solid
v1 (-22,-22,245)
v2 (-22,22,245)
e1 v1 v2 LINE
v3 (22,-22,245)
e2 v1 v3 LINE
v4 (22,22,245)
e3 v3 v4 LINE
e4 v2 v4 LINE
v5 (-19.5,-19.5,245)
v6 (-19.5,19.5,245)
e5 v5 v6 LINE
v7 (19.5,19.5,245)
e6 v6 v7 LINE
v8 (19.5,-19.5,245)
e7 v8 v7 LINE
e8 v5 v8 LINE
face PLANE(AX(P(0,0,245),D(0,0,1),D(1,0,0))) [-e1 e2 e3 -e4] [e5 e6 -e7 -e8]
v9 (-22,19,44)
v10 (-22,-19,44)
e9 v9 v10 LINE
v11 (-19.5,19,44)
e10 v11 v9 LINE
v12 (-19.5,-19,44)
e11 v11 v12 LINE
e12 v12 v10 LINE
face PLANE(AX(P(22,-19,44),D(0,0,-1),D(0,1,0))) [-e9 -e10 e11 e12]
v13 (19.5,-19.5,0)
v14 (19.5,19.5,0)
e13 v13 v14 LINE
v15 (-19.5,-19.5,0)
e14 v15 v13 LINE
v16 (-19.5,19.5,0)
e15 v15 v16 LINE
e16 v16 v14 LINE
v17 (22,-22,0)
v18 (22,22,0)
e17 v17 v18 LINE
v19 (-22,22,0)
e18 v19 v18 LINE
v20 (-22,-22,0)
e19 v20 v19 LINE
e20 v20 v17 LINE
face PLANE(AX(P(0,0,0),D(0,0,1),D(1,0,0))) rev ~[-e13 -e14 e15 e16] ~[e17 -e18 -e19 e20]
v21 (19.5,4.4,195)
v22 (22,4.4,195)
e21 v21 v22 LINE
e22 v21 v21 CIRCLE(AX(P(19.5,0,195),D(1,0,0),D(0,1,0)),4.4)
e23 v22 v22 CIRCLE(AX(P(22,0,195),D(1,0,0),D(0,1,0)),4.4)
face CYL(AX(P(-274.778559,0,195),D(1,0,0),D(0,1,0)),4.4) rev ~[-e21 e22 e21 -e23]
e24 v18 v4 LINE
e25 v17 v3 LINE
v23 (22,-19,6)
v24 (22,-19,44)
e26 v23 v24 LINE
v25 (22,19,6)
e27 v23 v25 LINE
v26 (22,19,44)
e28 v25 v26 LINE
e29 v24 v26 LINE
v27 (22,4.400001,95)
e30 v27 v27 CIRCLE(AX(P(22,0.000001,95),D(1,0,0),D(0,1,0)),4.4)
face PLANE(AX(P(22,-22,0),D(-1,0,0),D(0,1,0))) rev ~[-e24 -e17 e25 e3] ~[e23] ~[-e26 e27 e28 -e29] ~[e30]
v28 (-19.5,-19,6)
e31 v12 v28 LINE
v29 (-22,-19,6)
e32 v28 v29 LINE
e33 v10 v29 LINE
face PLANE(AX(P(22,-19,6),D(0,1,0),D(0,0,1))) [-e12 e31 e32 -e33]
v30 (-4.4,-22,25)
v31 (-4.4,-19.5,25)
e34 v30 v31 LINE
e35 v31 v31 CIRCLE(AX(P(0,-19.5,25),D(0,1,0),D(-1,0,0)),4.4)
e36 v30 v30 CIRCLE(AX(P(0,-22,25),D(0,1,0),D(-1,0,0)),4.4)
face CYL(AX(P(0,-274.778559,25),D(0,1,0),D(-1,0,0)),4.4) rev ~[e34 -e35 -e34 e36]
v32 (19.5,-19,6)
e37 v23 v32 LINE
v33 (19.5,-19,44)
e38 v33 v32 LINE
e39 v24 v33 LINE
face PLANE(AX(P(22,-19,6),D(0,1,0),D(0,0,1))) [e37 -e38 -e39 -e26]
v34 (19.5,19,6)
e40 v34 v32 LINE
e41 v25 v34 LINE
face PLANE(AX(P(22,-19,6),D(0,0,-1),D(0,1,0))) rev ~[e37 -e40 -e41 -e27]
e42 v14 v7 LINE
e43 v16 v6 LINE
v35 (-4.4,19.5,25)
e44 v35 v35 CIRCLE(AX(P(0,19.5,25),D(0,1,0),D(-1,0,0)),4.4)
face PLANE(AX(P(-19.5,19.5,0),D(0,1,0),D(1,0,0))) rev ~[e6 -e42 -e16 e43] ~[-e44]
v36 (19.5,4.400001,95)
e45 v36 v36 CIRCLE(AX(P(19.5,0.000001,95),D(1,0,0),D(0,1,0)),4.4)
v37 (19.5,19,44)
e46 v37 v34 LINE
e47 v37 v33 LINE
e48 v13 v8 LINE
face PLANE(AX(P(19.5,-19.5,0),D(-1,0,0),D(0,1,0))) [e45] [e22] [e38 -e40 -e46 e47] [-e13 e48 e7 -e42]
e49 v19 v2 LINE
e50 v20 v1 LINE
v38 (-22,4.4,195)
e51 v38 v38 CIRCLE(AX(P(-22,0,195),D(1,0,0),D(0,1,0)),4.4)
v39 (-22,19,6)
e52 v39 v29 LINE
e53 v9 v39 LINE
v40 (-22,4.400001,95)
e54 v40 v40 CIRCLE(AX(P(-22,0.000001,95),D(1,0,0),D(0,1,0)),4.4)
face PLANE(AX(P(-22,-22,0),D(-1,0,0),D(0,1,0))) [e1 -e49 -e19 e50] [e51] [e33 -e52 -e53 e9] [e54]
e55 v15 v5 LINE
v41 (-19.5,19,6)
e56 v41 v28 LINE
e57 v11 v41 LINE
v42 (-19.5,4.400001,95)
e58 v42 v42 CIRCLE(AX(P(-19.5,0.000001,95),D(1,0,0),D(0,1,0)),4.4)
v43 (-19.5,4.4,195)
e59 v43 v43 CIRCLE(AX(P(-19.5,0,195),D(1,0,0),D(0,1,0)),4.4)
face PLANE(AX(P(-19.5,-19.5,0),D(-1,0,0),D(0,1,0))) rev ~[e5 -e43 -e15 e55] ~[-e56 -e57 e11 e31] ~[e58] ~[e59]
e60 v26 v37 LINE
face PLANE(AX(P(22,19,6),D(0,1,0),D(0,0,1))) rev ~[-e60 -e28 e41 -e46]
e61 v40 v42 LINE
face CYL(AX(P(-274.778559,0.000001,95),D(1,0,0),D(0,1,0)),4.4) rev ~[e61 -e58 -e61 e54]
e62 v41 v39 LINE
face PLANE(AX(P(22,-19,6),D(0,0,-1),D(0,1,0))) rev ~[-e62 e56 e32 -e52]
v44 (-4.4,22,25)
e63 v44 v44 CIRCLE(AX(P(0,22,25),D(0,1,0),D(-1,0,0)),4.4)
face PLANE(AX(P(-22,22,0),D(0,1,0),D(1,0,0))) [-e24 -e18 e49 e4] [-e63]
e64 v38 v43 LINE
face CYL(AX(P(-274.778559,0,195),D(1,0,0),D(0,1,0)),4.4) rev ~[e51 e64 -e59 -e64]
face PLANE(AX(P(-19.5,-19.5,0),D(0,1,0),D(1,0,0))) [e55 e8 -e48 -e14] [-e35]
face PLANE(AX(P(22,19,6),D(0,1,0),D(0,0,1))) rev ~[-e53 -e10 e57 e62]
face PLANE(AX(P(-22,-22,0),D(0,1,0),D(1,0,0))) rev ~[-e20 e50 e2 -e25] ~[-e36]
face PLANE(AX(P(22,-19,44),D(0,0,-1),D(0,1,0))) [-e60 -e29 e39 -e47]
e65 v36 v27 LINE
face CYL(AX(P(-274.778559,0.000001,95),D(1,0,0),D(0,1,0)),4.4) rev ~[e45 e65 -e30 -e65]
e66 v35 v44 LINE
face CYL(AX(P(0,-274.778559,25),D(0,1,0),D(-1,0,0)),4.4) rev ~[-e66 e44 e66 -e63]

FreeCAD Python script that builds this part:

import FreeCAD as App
import Part
import Sketcher
from FreeCAD import Vector
Q = App.Units.Quantity


def add_polygon(sketch, points):
    """Adds a closed chain of lines whose ends are joined by coincident constraints."""
    first, n = sketch.GeometryCount, len(points)
    for a, b in zip(points, points[1:] + points[:1]):
        sketch.addGeometry(Part.LineSegment(App.Vector(*a, 0), App.Vector(*b, 0)), False)
    for i in range(n):
        sketch.addConstraint(Sketcher.Constraint("Coincident", first + i, 2, first + (i + 1) % n, 1))

doc = App.newDocument("Part")
params = doc.addObject("Spreadsheet::Sheet", "Params")
for row, (alias, value) in enumerate([
    ("sketch1_width", "44 mm"),
    ("sketch1_width2", "39 mm"),
    ("pad1_length", "245 mm"),
    ("sketch2_diameter", "8.8 mm"),
    ("hole_diameter", "8.8 mm"),
    ("sketch3_width", "38 mm"),
    ("sketch4_diameter", "8.8 mm"),
    ("hole2_diameter", "8.8 mm"),
], start=1):
    params.set(f"A{row}", alias)
    params.set(f"B{row}", "=" + value)
    params.setAlias(f"B{row}", alias)

body = doc.addObject("PartDesign::Body", "Body")

# Sketch on XY plane
sketch1 = doc.addObject("Sketcher::SketchObject", "Sketch")
body.addObject(sketch1)
sketch1.AttachmentSupport = (doc.XY_Plane, [""])
sketch1.MapMode = "FlatFace"
add_polygon(sketch1, [(-22, 22), (-22, -22), (22, -22), (22, 22)])  # lines 0-3
add_polygon(sketch1, [(20, -20), (-20, -20), (-20, 20), (20, 20)])  # lines 4-7
sketch1.addConstraint(Sketcher.Constraint("Vertical", 0))
sketch1.addConstraint(Sketcher.Constraint("Horizontal", 1))
sketch1.addConstraint(Sketcher.Constraint("Vertical", 2))
sketch1.addConstraint(Sketcher.Constraint("Horizontal", 3))
sketch1.addConstraint(Sketcher.Constraint("Horizontal", 4))
sketch1.addConstraint(Sketcher.Constraint("Vertical", 5))
sketch1.addConstraint(Sketcher.Constraint("Horizontal", 6))
sketch1.addConstraint(Sketcher.Constraint("Vertical", 7))
sketch1.addConstraint(Sketcher.Constraint("Symmetric", 0, 2, 2, 2, -1, 1))
sketch1.addConstraint(Sketcher.Constraint("Symmetric", 4, 2, 6, 2, -1, 1))
sketch1.addConstraint(Sketcher.Constraint("Equal", 3, 0))
sketch1.addConstraint(Sketcher.Constraint("Equal", 6, 5))
sketch1.addConstraint(Sketcher.Constraint("DistanceX", 1, 1, 1, 2, Q("44 mm")))
sketch1.addConstraint(Sketcher.Constraint("DistanceX", 4, 2, 4, 1, Q("39 mm")))
sketch1.setExpression("Constraints[20]", "Params.sketch1_width")
sketch1.setExpression("Constraints[21]", "Params.sketch1_width2")
pad1 = doc.addObject("PartDesign::Pad", "Pad")
body.addObject(pad1)
pad1.Profile = sketch1
pad1.setExpression("Length", "Params.pad1_length")

# Sketch on YZ plane
sketch2 = doc.addObject("Sketcher::SketchObject", "Sketch001")
body.addObject(sketch2)
sketch2.AttachmentSupport = (doc.YZ_Plane, [""])
sketch2.MapMode = "FlatFace"
sketch2.AttachmentOffset = App.Placement(Vector(0, 0, -22), App.Rotation())
sketch2.addGeometry(Part.Circle(Vector(0, 195, 0), Vector(0, 0, 1), 4.4), False)
sketch2.addGeometry(Part.Circle(Vector(0, 95, 0), Vector(0, 0, 1), 4.4), False)
sketch2.addConstraint(Sketcher.Constraint("Equal", 0, 1))
sketch2.addConstraint(Sketcher.Constraint("PointOnObject", 0, 3, -2))
sketch2.addConstraint(Sketcher.Constraint("PointOnObject", 1, 3, -2))
sketch2.addConstraint(Sketcher.Constraint("Diameter", 0, Q("8.8 mm")))
sketch2.addConstraint(Sketcher.Constraint("DistanceY", -1, 1, 0, 3, Q("195 mm")))
sketch2.addConstraint(Sketcher.Constraint("DistanceY", -1, 1, 1, 3, Q("95 mm")))
sketch2.setExpression("Constraints[3]", "Params.sketch2_diameter")
doc.recompute()
hole = doc.addObject("PartDesign::Hole", "Hole")
body.addObject(hole)
hole.Profile = sketch2
hole.ThreadType = "None"
hole.setExpression("Diameter", "Params.hole_diameter")
hole.DepthType = "ThroughAll"
hole.Reversed = True

# Sketch on YZ plane
sketch3 = doc.addObject("Sketcher::SketchObject", "Sketch002")
body.addObject(sketch3)
sketch3.AttachmentSupport = (doc.YZ_Plane, [""])
sketch3.MapMode = "FlatFace"
sketch3.AttachmentOffset = App.Placement(Vector(0, 0, 22), App.Rotation())
add_polygon(sketch3, [(-19, 44), (-19, 6), (19, 6), (19, 44)])  # lines 0-3
sketch3.addConstraint(Sketcher.Constraint("Vertical", 0))
sketch3.addConstraint(Sketcher.Constraint("Horizontal", 1))
sketch3.addConstraint(Sketcher.Constraint("Vertical", 2))
sketch3.addConstraint(Sketcher.Constraint("Horizontal", 3))
sketch3.addConstraint(Sketcher.Constraint("Equal", 3, 0))
sketch3.addConstraint(Sketcher.Constraint("DistanceX", 1, 1, 1, 2, Q("38 mm")))
sketch3.addConstraint(Sketcher.Constraint("DistanceX", 0, 2, -1, 1, Q("19 mm")))
sketch3.addConstraint(Sketcher.Constraint("DistanceY", -1, 1, 0, 2, Q("6 mm")))
sketch3.setExpression("Constraints[9]", "Params.sketch3_width")
pocket1 = doc.addObject("PartDesign::Pocket", "Pocket")
body.addObject(pocket1)
pocket1.Profile = sketch3
pocket1.Type = "ThroughAll"

# Sketch on XZ plane
sketch4 = doc.addObject("Sketcher::SketchObject", "Sketch003")
body.addObject(sketch4)
sketch4.AttachmentSupport = (doc.XZ_Plane, [""])
sketch4.MapMode = "FlatFace"
sketch4.AttachmentOffset = App.Placement(Vector(0, 0, 22), App.Rotation())
sketch4.addGeometry(Part.Circle(Vector(0, 25, 0), Vector(0, 0, 1), 4.4), False)
sketch4.addConstraint(Sketcher.Constraint("PointOnObject", 0, 3, -2))
sketch4.addConstraint(Sketcher.Constraint("Diameter", 0, Q("8.8 mm")))
sketch4.addConstraint(Sketcher.Constraint("DistanceY", -1, 1, 0, 3, Q("25 mm")))
sketch4.setExpression("Constraints[1]", "Params.sketch4_diameter")
doc.recompute()
hole2 = doc.addObject("PartDesign::Hole", "Hole001")
body.addObject(hole2)
hole2.Profile = sketch4
hole2.ThreadType = "None"
hole2.setExpression("Diameter", "Params.hole2_diameter")
hole2.DepthType = "ThroughAll"

doc.recompute()
